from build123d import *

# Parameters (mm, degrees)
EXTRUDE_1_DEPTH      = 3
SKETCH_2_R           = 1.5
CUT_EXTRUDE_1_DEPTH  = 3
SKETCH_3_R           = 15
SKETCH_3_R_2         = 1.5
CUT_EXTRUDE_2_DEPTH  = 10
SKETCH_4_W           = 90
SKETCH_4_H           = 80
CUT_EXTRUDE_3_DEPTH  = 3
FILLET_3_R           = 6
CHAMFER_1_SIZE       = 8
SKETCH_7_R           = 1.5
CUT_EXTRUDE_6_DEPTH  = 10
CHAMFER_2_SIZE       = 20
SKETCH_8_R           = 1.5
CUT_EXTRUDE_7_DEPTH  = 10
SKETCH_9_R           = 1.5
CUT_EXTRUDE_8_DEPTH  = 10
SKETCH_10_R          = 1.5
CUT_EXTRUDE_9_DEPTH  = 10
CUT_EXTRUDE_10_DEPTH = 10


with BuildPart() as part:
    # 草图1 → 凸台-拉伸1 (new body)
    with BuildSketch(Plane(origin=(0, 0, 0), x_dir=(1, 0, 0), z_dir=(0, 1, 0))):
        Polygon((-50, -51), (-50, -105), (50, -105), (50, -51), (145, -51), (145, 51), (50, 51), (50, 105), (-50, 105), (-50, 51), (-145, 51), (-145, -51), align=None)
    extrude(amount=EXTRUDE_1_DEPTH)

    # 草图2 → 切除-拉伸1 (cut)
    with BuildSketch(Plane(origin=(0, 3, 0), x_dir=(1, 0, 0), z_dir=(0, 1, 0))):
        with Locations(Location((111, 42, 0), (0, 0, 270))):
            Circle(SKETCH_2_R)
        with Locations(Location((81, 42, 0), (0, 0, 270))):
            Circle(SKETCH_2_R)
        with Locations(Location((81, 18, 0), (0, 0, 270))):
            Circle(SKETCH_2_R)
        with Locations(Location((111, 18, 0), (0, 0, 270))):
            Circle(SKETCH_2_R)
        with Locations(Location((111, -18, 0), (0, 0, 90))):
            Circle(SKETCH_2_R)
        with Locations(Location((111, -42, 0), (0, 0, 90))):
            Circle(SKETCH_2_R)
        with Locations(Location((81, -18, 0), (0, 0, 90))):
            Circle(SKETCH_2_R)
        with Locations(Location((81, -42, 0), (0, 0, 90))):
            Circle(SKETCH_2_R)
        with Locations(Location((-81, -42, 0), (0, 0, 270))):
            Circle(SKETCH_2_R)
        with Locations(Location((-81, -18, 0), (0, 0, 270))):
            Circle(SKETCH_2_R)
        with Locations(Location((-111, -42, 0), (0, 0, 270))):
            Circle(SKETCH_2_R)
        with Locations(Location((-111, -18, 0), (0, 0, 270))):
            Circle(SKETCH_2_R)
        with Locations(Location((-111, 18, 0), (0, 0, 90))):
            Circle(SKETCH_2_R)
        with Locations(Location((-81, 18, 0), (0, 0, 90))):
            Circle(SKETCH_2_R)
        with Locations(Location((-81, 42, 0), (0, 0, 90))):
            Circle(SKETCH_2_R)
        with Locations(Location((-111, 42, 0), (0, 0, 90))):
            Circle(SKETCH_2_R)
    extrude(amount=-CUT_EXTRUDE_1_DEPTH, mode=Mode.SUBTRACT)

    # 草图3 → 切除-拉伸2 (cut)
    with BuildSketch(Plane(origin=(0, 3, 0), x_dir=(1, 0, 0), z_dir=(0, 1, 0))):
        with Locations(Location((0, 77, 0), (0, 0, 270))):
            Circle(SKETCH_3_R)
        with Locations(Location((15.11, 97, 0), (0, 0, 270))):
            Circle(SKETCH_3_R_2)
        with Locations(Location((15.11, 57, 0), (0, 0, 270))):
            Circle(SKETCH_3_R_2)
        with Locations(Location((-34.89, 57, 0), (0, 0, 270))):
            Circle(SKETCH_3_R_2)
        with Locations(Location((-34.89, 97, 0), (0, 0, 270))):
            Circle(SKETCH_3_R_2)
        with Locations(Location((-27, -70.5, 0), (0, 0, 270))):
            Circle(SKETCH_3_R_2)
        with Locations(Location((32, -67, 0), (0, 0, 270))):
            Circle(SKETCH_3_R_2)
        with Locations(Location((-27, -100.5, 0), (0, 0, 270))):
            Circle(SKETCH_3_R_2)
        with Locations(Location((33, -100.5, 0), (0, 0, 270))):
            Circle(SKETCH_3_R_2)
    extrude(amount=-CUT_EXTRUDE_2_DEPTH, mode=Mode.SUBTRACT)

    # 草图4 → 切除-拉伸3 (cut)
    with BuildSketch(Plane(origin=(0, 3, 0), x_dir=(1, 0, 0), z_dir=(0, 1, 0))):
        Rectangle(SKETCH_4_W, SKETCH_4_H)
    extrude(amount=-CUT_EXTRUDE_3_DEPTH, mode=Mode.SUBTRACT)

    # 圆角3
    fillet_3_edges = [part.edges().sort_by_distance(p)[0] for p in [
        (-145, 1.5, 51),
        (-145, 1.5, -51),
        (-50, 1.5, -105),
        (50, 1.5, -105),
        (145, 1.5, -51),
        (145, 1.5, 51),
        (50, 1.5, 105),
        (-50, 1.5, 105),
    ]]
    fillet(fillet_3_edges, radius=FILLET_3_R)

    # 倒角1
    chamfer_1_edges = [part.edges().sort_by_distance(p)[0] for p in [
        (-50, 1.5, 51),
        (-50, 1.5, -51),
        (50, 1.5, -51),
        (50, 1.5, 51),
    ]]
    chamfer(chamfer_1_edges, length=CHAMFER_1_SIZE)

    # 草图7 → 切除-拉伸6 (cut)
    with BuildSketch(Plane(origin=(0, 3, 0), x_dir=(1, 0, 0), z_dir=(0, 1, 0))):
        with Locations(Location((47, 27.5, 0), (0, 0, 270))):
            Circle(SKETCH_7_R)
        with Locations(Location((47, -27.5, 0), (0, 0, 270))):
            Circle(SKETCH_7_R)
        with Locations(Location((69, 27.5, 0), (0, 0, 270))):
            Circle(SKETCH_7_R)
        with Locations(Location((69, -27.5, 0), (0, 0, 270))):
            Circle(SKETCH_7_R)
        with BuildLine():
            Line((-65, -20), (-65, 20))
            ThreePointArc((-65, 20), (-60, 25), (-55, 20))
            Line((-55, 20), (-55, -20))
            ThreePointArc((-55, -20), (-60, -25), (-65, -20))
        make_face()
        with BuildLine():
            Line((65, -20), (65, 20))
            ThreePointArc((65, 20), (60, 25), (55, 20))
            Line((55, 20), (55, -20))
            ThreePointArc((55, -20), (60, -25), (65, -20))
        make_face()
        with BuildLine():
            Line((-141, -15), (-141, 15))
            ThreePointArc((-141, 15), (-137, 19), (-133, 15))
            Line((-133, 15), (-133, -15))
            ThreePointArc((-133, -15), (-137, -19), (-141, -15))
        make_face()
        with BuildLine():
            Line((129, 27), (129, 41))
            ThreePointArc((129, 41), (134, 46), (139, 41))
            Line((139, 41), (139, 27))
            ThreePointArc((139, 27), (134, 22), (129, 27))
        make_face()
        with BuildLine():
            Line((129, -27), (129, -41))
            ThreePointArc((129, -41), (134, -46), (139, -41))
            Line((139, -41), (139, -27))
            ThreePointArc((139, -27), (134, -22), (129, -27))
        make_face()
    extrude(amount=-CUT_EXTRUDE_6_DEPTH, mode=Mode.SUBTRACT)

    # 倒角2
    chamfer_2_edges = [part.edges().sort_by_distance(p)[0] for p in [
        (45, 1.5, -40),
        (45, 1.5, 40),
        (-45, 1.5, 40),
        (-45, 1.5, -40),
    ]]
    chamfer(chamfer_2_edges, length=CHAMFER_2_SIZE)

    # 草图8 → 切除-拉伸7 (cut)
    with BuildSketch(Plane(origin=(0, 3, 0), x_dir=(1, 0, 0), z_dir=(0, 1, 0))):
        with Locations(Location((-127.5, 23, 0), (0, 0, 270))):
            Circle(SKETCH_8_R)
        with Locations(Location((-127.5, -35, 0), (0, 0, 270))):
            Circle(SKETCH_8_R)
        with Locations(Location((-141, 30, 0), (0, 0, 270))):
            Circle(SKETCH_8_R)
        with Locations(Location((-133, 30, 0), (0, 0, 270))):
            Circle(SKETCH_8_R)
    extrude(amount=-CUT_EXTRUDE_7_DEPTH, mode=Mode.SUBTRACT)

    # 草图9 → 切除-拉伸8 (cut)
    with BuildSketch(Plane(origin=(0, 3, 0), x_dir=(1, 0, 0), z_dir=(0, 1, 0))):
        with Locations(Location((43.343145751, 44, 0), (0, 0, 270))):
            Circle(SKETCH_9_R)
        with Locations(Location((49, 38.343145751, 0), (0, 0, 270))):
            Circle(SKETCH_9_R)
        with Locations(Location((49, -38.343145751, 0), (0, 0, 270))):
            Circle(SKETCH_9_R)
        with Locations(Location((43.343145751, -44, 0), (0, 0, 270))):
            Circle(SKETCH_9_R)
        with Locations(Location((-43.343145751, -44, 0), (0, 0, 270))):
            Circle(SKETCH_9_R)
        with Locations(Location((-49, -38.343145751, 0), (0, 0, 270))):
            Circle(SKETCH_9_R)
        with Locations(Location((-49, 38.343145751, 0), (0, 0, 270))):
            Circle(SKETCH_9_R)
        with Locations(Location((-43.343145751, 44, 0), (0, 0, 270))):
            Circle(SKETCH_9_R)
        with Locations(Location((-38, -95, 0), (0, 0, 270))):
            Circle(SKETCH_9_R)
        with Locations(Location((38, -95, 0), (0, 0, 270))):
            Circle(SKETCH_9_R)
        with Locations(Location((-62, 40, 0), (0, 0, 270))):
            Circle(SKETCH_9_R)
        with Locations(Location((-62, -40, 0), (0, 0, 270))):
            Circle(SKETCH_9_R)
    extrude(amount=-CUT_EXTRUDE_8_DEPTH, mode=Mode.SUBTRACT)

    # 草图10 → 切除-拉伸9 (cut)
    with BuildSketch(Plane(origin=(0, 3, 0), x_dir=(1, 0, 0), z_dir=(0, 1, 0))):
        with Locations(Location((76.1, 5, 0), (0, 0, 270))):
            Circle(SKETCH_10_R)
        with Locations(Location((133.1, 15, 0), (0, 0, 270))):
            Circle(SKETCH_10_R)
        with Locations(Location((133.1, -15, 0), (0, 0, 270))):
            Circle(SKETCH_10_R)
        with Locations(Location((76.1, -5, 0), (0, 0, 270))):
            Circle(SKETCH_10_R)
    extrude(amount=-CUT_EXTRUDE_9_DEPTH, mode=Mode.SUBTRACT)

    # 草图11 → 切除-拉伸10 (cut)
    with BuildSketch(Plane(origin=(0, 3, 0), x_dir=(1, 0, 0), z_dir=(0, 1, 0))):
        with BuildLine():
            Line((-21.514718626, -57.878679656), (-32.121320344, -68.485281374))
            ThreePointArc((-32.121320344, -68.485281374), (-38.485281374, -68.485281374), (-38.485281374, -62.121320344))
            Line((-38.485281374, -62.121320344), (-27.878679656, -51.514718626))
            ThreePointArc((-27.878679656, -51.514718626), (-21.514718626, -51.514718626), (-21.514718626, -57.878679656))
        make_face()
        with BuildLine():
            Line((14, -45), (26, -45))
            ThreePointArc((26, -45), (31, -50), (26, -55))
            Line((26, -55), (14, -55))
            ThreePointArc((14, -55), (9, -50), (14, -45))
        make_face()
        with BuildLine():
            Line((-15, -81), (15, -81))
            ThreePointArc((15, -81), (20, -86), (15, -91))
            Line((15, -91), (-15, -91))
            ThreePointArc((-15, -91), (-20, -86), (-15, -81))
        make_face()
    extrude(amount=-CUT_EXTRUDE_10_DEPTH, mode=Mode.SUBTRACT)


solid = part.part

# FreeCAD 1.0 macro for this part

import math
import FreeCAD as App
import Part
import Sketcher

V = App.Vector
Q = App.Units.Quantity


def edges_at(feature, points):
    """Names of the edges that pass closest to the given points."""
    edges = feature.Shape.Edges
    near = lambda p: min(range(len(edges)), key=lambda i: edges[i].distToShape(Part.Vertex(*p))[0])
    return sorted({f"Edge{near(p) + 1}" for p in points})


def add_polygon(sketch, points):
    """Adds a closed chain of lines whose ends are joined by coincident constraints."""
    first, n = sketch.GeometryCount, len(points)
    for a, b in zip(points, points[1:] + points[:1]):
        sketch.addGeometry(Part.LineSegment(App.Vector(*a, 0), App.Vector(*b, 0)), False)
    for i in range(n):
        sketch.addConstraint(Sketcher.Constraint("Coincident", first + i, 2, first + (i + 1) % n, 1))

doc = App.newDocument("Part")
body = doc.addObject("PartDesign::Body", "Body")

# Sketch on XZ plane
sketch1 = body.newObject("Sketcher::SketchObject", "Sketch")
sketch1.AttachmentSupport = (doc.getObject("XZ_Plane"), [""])
sketch1.MapMode = "FlatFace"
add_polygon(sketch1, [(-50, 51), (-50, 105), (50, 105), (50, 51), (145, 51), (145, -51), (50, -51), (50, -105), (-50, -105), (-50, -51), (-145, -51), (-145, 51)])  # lines 0-11
sketch1.addConstraint([
    Sketcher.Constraint("Vertical", 0),
    Sketcher.Constraint("Horizontal", 1),
    Sketcher.Constraint("Vertical", 2),
    Sketcher.Constraint("Horizontal", 3),
    Sketcher.Constraint("Vertical", 4),
    Sketcher.Constraint("Horizontal", 5),
    Sketcher.Constraint("Vertical", 6),
    Sketcher.Constraint("Horizontal", 7),
    Sketcher.Constraint("Vertical", 8),
    Sketcher.Constraint("Horizontal", 9),
    Sketcher.Constraint("Vertical", 10),
    Sketcher.Constraint("Horizontal", 11),
    Sketcher.Constraint("Symmetric", 0, 2, 6, 2, -1, 1),
    Sketcher.Constraint("Symmetric", 2, 2, 8, 2, -1, 1),
    Sketcher.Constraint("Symmetric", 4, 2, 10, 2, -1, 1),
    Sketcher.Constraint("Symmetric", 5, 2, 8, 2, -2),
    Sketcher.Constraint("DistanceX", 1, 1, 1, 2, Q("100 mm")),
    Sketcher.Constraint("DistanceX", 3, 1, 3, 2, Q("95 mm")),
    Sketcher.Constraint("DistanceY", 0, 1, 0, 2, Q("54 mm")),
    Sketcher.Constraint("DistanceY", 4, 2, 4, 1, Q("102 mm")),
])
pad1 = body.newObject("PartDesign::Pad", "Pad")
pad1.Profile = sketch1
pad1.Length = 3
pad1.Reversed = True

# Sketch on XZ plane
sketch2 = body.newObject("Sketcher::SketchObject", "Sketch001")
sketch2.AttachmentSupport = (doc.getObject("XZ_Plane"), [""])
sketch2.MapMode = "FlatFace"
sketch2.AttachmentOffset = App.Placement(V(0, 0, -3), App.Rotation())
sketch2.addGeometry([
    Part.Circle(V(111, -42, 0), V(0, 0, 1), 1.5),  # 0
    Part.Circle(V(81, -42, 0), V(0, 0, 1), 1.5),  # 1
    Part.Circle(V(81, -18, 0), V(0, 0, 1), 1.5),  # 2
    Part.Circle(V(111, -18, 0), V(0, 0, 1), 1.5),  # 3
    Part.Circle(V(111, 18, 0), V(0, 0, 1), 1.5),  # 4
    Part.Circle(V(111, 42, 0), V(0, 0, 1), 1.5),  # 5
    Part.Circle(V(81, 18, 0), V(0, 0, 1), 1.5),  # 6
    Part.Circle(V(81, 42, 0), V(0, 0, 1), 1.5),  # 7
    Part.Circle(V(-81, 42, 0), V(0, 0, 1), 1.5),  # 8
    Part.Circle(V(-81, 18, 0), V(0, 0, 1), 1.5),  # 9
    Part.Circle(V(-111, 42, 0), V(0, 0, 1), 1.5),  # 10
    Part.Circle(V(-111, 18, 0), V(0, 0, 1), 1.5),  # 11
    Part.Circle(V(-111, -18, 0), V(0, 0, 1), 1.5),  # 12
    Part.Circle(V(-81, -18, 0), V(0, 0, 1), 1.5),  # 13
    Part.Circle(V(-81, -42, 0), V(0, 0, 1), 1.5),  # 14
    Part.Circle(V(-111, -42, 0), V(0, 0, 1), 1.5),  # 15
], False)
sketch2.addConstraint([
    Sketcher.Constraint("Equal", 0, 1),
    Sketcher.Constraint("Equal", 1, 2),
    Sketcher.Constraint("Equal", 2, 3),
    Sketcher.Constraint("Equal", 3, 4),
    Sketcher.Constraint("Equal", 4, 5),
    Sketcher.Constraint("Equal", 5, 6),
    Sketcher.Constraint("Equal", 6, 7),
    Sketcher.Constraint("Equal", 7, 8),
    Sketcher.Constraint("Equal", 8, 9),
    Sketcher.Constraint("Equal", 9, 10),
    Sketcher.Constraint("Equal", 10, 11),
    Sketcher.Constraint("Equal", 11, 12),
    Sketcher.Constraint("Equal", 12, 13),
    Sketcher.Constraint("Equal", 13, 14),
    Sketcher.Constraint("Equal", 14, 15),
    Sketcher.Constraint("Symmetric", 1, 3, 8, 3, -1, 1),
    Sketcher.Constraint("Symmetric", 2, 3, 9, 3, -1, 1),
    Sketcher.Constraint("Symmetric", 0, 3, 10, 3, -1, 1),
    Sketcher.Constraint("Symmetric", 3, 3, 11, 3, -1, 1),
    Sketcher.Constraint("Symmetric", 4, 3, 12, 3, -1, 1),
    Sketcher.Constraint("Symmetric", 6, 3, 13, 3, -1, 1),
    Sketcher.Constraint("Symmetric", 7, 3, 14, 3, -1, 1),
    Sketcher.Constraint("Symmetric", 5, 3, 15, 3, -1, 1),
    Sketcher.Constraint("Symmetric", 7, 3, 8, 3, -2),
    Sketcher.Constraint("Symmetric", 6, 3, 9, 3, -2),
    Sketcher.Constraint("Symmetric", 5, 3, 10, 3, -2),
    Sketcher.Constraint("Symmetric", 4, 3, 11, 3, -2),
    Sketcher.Constraint("Horizontal", 0, 3, 1, 3),
    Sketcher.Constraint("Horizontal", 2, 3, 3, 3),
    Sketcher.Constraint("Vertical", 1, 3, 2, 3),
    Sketcher.Constraint("Vertical", 0, 3, 3, 3),
    Sketcher.Constraint("Diameter", 0, Q("3 mm")),
    Sketcher.Constraint("DistanceX", -1, 1, 0, 3, Q("111 mm")),
    Sketcher.Constraint("DistanceY", 0, 3, -1, 1, Q("42 mm")),
    Sketcher.Constraint("DistanceX", -1, 1, 1, 3, Q("81 mm")),
    Sketcher.Constraint("DistanceY", 2, 3, -1, 1, Q("18 mm")),
])
pocket1 = body.newObject("PartDesign::Pocket", "Pocket")
pocket1.Profile = sketch2
pocket1.Length = 3
pocket1.Reversed = True

# Sketch on XZ plane
sketch3 = body.newObject("Sketcher::SketchObject", "Sketch002")
sketch3.AttachmentSupport = (doc.getObject("XZ_Plane"), [""])
sketch3.MapMode = "FlatFace"
sketch3.AttachmentOffset = App.Placement(V(0, 0, -3), App.Rotation())
sketch3.addGeometry([
    Part.Circle(V(0, -77, 0), V(0, 0, 1), 15),  # 0
    Part.Circle(V(15.11, -97, 0), V(0, 0, 1), 1.5),  # 1
    Part.Circle(V(15.11, -57, 0), V(0, 0, 1), 1.5),  # 2
    Part.Circle(V(-34.89, -57, 0), V(0, 0, 1), 1.5),  # 3
    Part.Circle(V(-34.89, -97, 0), V(0, 0, 1), 1.5),  # 4
    Part.Circle(V(-27, 70.5, 0), V(0, 0, 1), 1.5),  # 5
    Part.Circle(V(32, 67, 0), V(0, 0, 1), 1.5),  # 6
    Part.Circle(V(-27, 100.5, 0), V(0, 0, 1), 1.5),  # 7
    Part.Circle(V(33, 100.5, 0), V(0, 0, 1), 1.5),  # 8
], False)
sketch3.addConstraint([
    Sketcher.Constraint("Equal", 1, 2),
    Sketcher.Constraint("Equal", 2, 3),
    Sketcher.Constraint("Equal", 3, 4),
    Sketcher.Constraint("Equal", 4, 5),
    Sketcher.Constraint("Equal", 5, 6),
    Sketcher.Constraint("Equal", 6, 7),
    Sketcher.Constraint("Equal", 7, 8),
    Sketcher.Constraint("PointOnObject", 0, 3, -2),
    Sketcher.Constraint("Horizontal", 2, 3, 3, 3),
    Sketcher.Constraint("Horizontal", 1, 3, 4, 3),
    Sketcher.Constraint("Horizontal", 7, 3, 8, 3),
    Sketcher.Constraint("Vertical", 1, 3, 2, 3),
    Sketcher.Constraint("Vertical", 3, 3, 4, 3),
    Sketcher.Constraint("Vertical", 5, 3, 7, 3),
    Sketcher.Constraint("Diameter", 0, Q("30 mm")),
    Sketcher.Constraint("Diameter", 1, Q("3 mm")),
    Sketcher.Constraint("DistanceY", 0, 3, -1, 1, Q("77 mm")),
    Sketcher.Constraint("DistanceY", 1, 3, -1, 1, Q("97 mm")),
    Sketcher.Constraint("DistanceY", 2, 3, -1, 1, Q("57 mm")),
    Sketcher.Constraint("DistanceX", 5, 3, -1, 1, Q("27 mm")),
    Sketcher.Constraint("DistanceX", -1, 1, 6, 3, Q("32 mm")),
    Sketcher.Constraint("DistanceY", -1, 1, 6, 3, Q("67 mm")),
    Sketcher.Constraint("DistanceX", -1, 1, 8, 3, Q("33 mm")),
    Sketcher.Constraint("DistanceX", 3, 3, 2, 3, Q("50 mm")),
    Sketcher.Constraint("DistanceY", 5, 3, 7, 3, Q("30 mm")),
    Sketcher.Constraint("DistanceY", -1, 1, 5, 3, Q("70.5 mm")),
    Sketcher.Constraint("DistanceX", -1, 1, 1, 3, Q("15.11 mm")),
])
pocket2 = body.newObject("PartDesign::Pocket", "Pocket001")
pocket2.Profile = sketch3
pocket2.Length = 10
pocket2.Reversed = True

# Sketch on XZ plane
sketch4 = body.newObject("Sketcher::SketchObject", "Sketch003")
sketch4.AttachmentSupport = (doc.getObject("XZ_Plane"), [""])
sketch4.MapMode = "FlatFace"
sketch4.AttachmentOffset = App.Placement(V(0, 0, -3), App.Rotation())
add_polygon(sketch4, [(-45, -40), (-45, 40), (45, 40), (45, -40)])  # lines 0-3
sketch4.addConstraint([
    Sketcher.Constraint("Vertical", 0),
    Sketcher.Constraint("Horizontal", 1),
    Sketcher.Constraint("Vertical", 2),
    Sketcher.Constraint("Horizontal", 3),
    Sketcher.Constraint("Symmetric", 0, 2, 2, 2, -1, 1),
    Sketcher.Constraint("DistanceX", 1, 1, 1, 2, Q("90 mm")),
    Sketcher.Constraint("DistanceY", 0, 1, 0, 2, Q("80 mm")),
])
pocket3 = body.newObject("PartDesign::Pocket", "Pocket002")
pocket3.Profile = sketch4
pocket3.Length = 3
pocket3.Reversed = True
doc.recompute()

fillet = body.newObject("PartDesign::Fillet", "Fillet")
fillet.Base = (pocket3, edges_at(pocket3, [
    (-145, 1.5, 51),
    (-145, 1.5, -51),
    (-50, 1.5, -105),
    (50, 1.5, -105),
    (145, 1.5, -51),
    (145, 1.5, 51),
    (50, 1.5, 105),
    (-50, 1.5, 105),
]))
fillet.Radius = 6
doc.recompute()

chamfer = body.newObject("PartDesign::Chamfer", "Chamfer")
chamfer.Base = (fillet, edges_at(fillet, [
    (-50, 1.5, 51),
    (-50, 1.5, -51),
    (50, 1.5, -51),
    (50, 1.5, 51),
]))
chamfer.Size = 8

# Sketch on XZ plane
sketch5 = body.newObject("Sketcher::SketchObject", "Sketch004")
sketch5.AttachmentSupport = (doc.getObject("XZ_Plane"), [""])
sketch5.MapMode = "FlatFace"
sketch5.AttachmentOffset = App.Placement(V(0, 0, -3), App.Rotation())
sketch5.addGeometry([
    Part.Circle(V(47, -27.5, 0), V(0, 0, 1), 1.5),  # 0
    Part.Circle(V(47, 27.5, 0), V(0, 0, 1), 1.5),  # 1
    Part.Circle(V(69, -27.5, 0), V(0, 0, 1), 1.5),  # 2
    Part.Circle(V(69, 27.5, 0), V(0, 0, 1), 1.5),  # 3
    Part.LineSegment(V(-65, -20, 0), V(-65, 20, 0)),  # 4
    Part.ArcOfCircle(Part.Circle(V(-60, 20, 0), V(0, 0, 1), 5), math.radians(0), math.radians(180)),  # 5
    Part.LineSegment(V(-55, 20, 0), V(-55, -20, 0)),  # 6
    Part.ArcOfCircle(Part.Circle(V(-60, -20, 0), V(0, 0, 1), 5), math.radians(180), math.radians(360)),  # 7
    Part.LineSegment(V(65, 20, 0), V(65, -20, 0)),  # 8
    Part.ArcOfCircle(Part.Circle(V(60, -20, 0), V(0, 0, 1), 5), math.radians(180), math.radians(360)),  # 9
    Part.LineSegment(V(55, -20, 0), V(55, 20, 0)),  # 10
    Part.ArcOfCircle(Part.Circle(V(60, 20, 0), V(0, 0, 1), 5), math.radians(0), math.radians(180)),  # 11
    Part.LineSegment(V(-141, -15, 0), V(-141, 15, 0)),  # 12
    Part.ArcOfCircle(Part.Circle(V(-137, 15, 0), V(0, 0, 1), 4), math.radians(0), math.radians(180)),  # 13
    Part.LineSegment(V(-133, 15, 0), V(-133, -15, 0)),  # 14
    Part.ArcOfCircle(Part.Circle(V(-137, -15, 0), V(0, 0, 1), 4), math.radians(180), math.radians(360)),  # 15
    Part.LineSegment(V(129, -41, 0), V(129, -27, 0)),  # 16
    Part.ArcOfCircle(Part.Circle(V(134, -27, 0), V(0, 0, 1), 5), math.radians(0), math.radians(180)),  # 17
    Part.LineSegment(V(139, -27, 0), V(139, -41, 0)),  # 18
    Part.ArcOfCircle(Part.Circle(V(134, -41, 0), V(0, 0, 1), 5), math.radians(180), math.radians(360)),  # 19
    Part.LineSegment(V(129, 27, 0), V(129, 41, 0)),  # 20
    Part.ArcOfCircle(Part.Circle(V(134, 41, 0), V(0, 0, 1), 5), math.radians(0), math.radians(180)),  # 21
    Part.LineSegment(V(139, 41, 0), V(139, 27, 0)),  # 22
    Part.ArcOfCircle(Part.Circle(V(134, 27, 0), V(0, 0, 1), 5), math.radians(180), math.radians(360)),  # 23
], False)
sketch5.addConstraint([
    Sketcher.Constraint("Tangent", 4, 2, 5, 2),
    Sketcher.Constraint("Tangent", 5, 1, 6, 1),
    Sketcher.Constraint("Tangent", 6, 2, 7, 2),
    Sketcher.Constraint("Tangent", 7, 1, 4, 1),
    Sketcher.Constraint("Tangent", 8, 2, 9, 2),
    Sketcher.Constraint("Tangent", 9, 1, 10, 1),
    Sketcher.Constraint("Tangent", 10, 2, 11, 2),
    Sketcher.Constraint("Tangent", 11, 1, 8, 1),
    Sketcher.Constraint("Tangent", 12, 2, 13, 2),
    Sketcher.Constraint("Tangent", 13, 1, 14, 1),
    Sketcher.Constraint("Tangent", 14, 2, 15, 2),
    Sketcher.Constraint("Tangent", 15, 1, 12, 1),
    Sketcher.Constraint("Tangent", 16, 2, 17, 2),
    Sketcher.Constraint("Tangent", 17, 1, 18, 1),
    Sketcher.Constraint("Tangent", 18, 2, 19, 2),
    Sketcher.Constraint("Tangent", 19, 1, 16, 1),
    Sketcher.Constraint("Tangent", 20, 2, 21, 2),
    Sketcher.Constraint("Tangent", 21, 1, 22, 1),
    Sketcher.Constraint("Tangent", 22, 2, 23, 2),
    Sketcher.Constraint("Tangent", 23, 1, 20, 1),
    Sketcher.Constraint("Vertical", 4),
    Sketcher.Constraint("Vertical", 6),
    Sketcher.Constraint("Vertical", 8),
    Sketcher.Constraint("Vertical", 10),
    Sketcher.Constraint("Vertical", 12),
    Sketcher.Constraint("Vertical", 14),
    Sketcher.Constraint("Vertical", 16),
    Sketcher.Constraint("Vertical", 18),
    Sketcher.Constraint("Vertical", 20),
    Sketcher.Constraint("Vertical", 22),
    Sketcher.Constraint("Equal", 0, 1),
    Sketcher.Constraint("Equal", 1, 2),
    Sketcher.Constraint("Equal", 2, 3),
    Sketcher.Constraint("Equal", 7, 9),
    Sketcher.Constraint("Equal", 11, 17),
    Sketcher.Constraint("Equal", 19, 21),
    Sketcher.Constraint("Symmetric", 5, 3, 9, 3, -1, 1),
    Sketcher.Constraint("Symmetric", 0, 3, 1, 3, -1),
    Sketcher.Constraint("Symmetric", 2, 3, 3, 3, -1),
    Sketcher.Constraint("Symmetric", 19, 3, 21, 3, -1),
    Sketcher.Constraint("Horizontal", 0, 3, 2, 3),
    Sketcher.Constraint("Horizontal", 7, 3, 9, 3),
    Sketcher.Constraint("Horizontal", 5, 3, 11, 3),
    Sketcher.Constraint("Equal", 18, 20),
    Sketcher.Constraint("Diameter", 0, Q("3 mm")),
    Sketcher.Constraint("Radius", 5, Q("5 mm")),
    Sketcher.Constraint("Radius", 13, Q("4 mm")),
    Sketcher.Constraint("DistanceY", 4, 1, 4, 2, Q("40 mm")),
    Sketcher.Constraint("DistanceY", 12, 1, 12, 2, Q("30 mm")),
    Sketcher.Constraint("DistanceY", 16, 1, 16, 2, Q("14 mm")),
    Sketcher.Constraint("DistanceX", -1, 1, 0, 3, Q("47 mm")),
    Sketcher.Constraint("DistanceX", -1, 1, 2, 3, Q("69 mm")),
    Sketcher.Constraint("DistanceX", 5, 3, -1, 1, Q("60 mm")),
    Sketcher.Constraint("DistanceX", 13, 3, -1, 1, Q("137 mm")),
    Sketcher.Constraint("DistanceY", -1, 1, 13, 3, Q("15 mm")),
    Sketcher.Constraint("DistanceX", -1, 1, 17, 3, Q("134 mm")),
    Sketcher.Constraint("DistanceY", 17, 3, -1, 1, Q("27 mm")),
    Sketcher.Constraint("DistanceY", 0, 3, 1, 3, Q("55 mm")),
])
pocket4 = body.newObject("PartDesign::Pocket", "Pocket003")
pocket4.Profile = sketch5
pocket4.Length = 10
pocket4.Reversed = True
doc.recompute()

chamfer2 = body.newObject("PartDesign::Chamfer", "Chamfer001")
chamfer2.Base = (pocket4, edges_at(pocket4, [
    (45, 1.5, -40),
    (45, 1.5, 40),
    (-45, 1.5, 40),
    (-45, 1.5, -40),
]))
chamfer2.Size = 20

# Sketch on XZ plane
sketch6 = body.newObject("Sketcher::SketchObject", "Sketch005")
sketch6.AttachmentSupport = (doc.getObject("XZ_Plane"), [""])
sketch6.MapMode = "FlatFace"
sketch6.AttachmentOffset = App.Placement(V(0, 0, -3), App.Rotation())
sketch6.addGeometry([
    Part.Circle(V(-127.5, -23, 0), V(0, 0, 1), 1.5),
    Part.Circle(V(-127.5, 35, 0), V(0, 0, 1), 1.5),
    Part.Circle(V(-141, -30, 0), V(0, 0, 1), 1.5),
    Part.Circle(V(-133, -30, 0), V(0, 0, 1), 1.5),
], False)
sketch6.addConstraint([
    Sketcher.Constraint("Equal", 0, 1),
    Sketcher.Constraint("Equal", 1, 2),
    Sketcher.Constraint("Equal", 2, 3),
    Sketcher.Constraint("Horizontal", 2, 3, 3, 3),
    Sketcher.Constraint("Vertical", 0, 3, 1, 3),
    Sketcher.Constraint("Diameter", 0, Q("3 mm")),
    Sketcher.Constraint("DistanceY", 0, 3, -1, 1, Q("23 mm")),
    Sketcher.Constraint("DistanceY", -1, 1, 1, 3, Q("35 mm")),
    Sketcher.Constraint("DistanceX", 2, 3, -1, 1, Q("141 mm")),
    Sketcher.Constraint("DistanceY", 2, 3, -1, 1, Q("30 mm")),
    Sketcher.Constraint("DistanceX", 3, 3, -1, 1, Q("133 mm")),
    Sketcher.Constraint("DistanceX", 0, 3, -1, 1, Q("127.5 mm")),
])
pocket5 = body.newObject("PartDesign::Pocket", "Pocket004")
pocket5.Profile = sketch6
pocket5.Length = 10
pocket5.Reversed = True

# Sketch on XZ plane
sketch7 = body.newObject("Sketcher::SketchObject", "Sketch006")
sketch7.AttachmentSupport = (doc.getObject("XZ_Plane"), [""])
sketch7.MapMode = "FlatFace"
sketch7.AttachmentOffset = App.Placement(V(0, 0, -3), App.Rotation())
sketch7.addGeometry([
    Part.Circle(V(43.343146, -44, 0), V(0, 0, 1), 1.5),  # 0
    Part.Circle(V(49, -38.343146, 0), V(0, 0, 1), 1.5),  # 1
    Part.Circle(V(49, 38.343146, 0), V(0, 0, 1), 1.5),  # 2
    Part.Circle(V(43.343146, 44, 0), V(0, 0, 1), 1.5),  # 3
    Part.Circle(V(-43.343146, 44, 0), V(0, 0, 1), 1.5),  # 4
    Part.Circle(V(-49, 38.343146, 0), V(0, 0, 1), 1.5),  # 5
    Part.Circle(V(-49, -38.343146, 0), V(0, 0, 1), 1.5),  # 6
    Part.Circle(V(-43.343146, -44, 0), V(0, 0, 1), 1.5),  # 7
    Part.Circle(V(-38, 95, 0), V(0, 0, 1), 1.5),  # 8
    Part.Circle(V(38, 95, 0), V(0, 0, 1), 1.5),  # 9
    Part.Circle(V(-62, -40, 0), V(0, 0, 1), 1.5),  # 10
    Part.Circle(V(-62, 40, 0), V(0, 0, 1), 1.5),  # 11
], False)
sketch7.addConstraint([
    Sketcher.Constraint("Equal", 0, 1),
    Sketcher.Constraint("Equal", 1, 2),
    Sketcher.Constraint("Equal", 2, 3),
    Sketcher.Constraint("Equal", 3, 4),
    Sketcher.Constraint("Equal", 4, 5),
    Sketcher.Constraint("Equal", 5, 6),
    Sketcher.Constraint("Equal", 6, 7),
    Sketcher.Constraint("Equal", 7, 8),
    Sketcher.Constraint("Equal", 8, 9),
    Sketcher.Constraint("Equal", 9, 10),
    Sketcher.Constraint("Equal", 10, 11),
    Sketcher.Constraint("Symmetric", 0, 3, 4, 3, -1, 1),
    Sketcher.Constraint("Symmetric", 1, 3, 5, 3, -1, 1),
    Sketcher.Constraint("Symmetric", 2, 3, 6, 3, -1, 1),
    Sketcher.Constraint("Symmetric", 3, 3, 7, 3, -1, 1),
    Sketcher.Constraint("Symmetric", 3, 3, 4, 3, -2),
    Sketcher.Constraint("Symmetric", 2, 3, 5, 3, -2),
    Sketcher.Constraint("Symmetric", 8, 3, 9, 3, -2),
    Sketcher.Constraint("Symmetric", 10, 3, 11, 3, -1),
    Sketcher.Constraint("Diameter", 0, Q("3 mm")),
    Sketcher.Constraint("DistanceY", 0, 3, -1, 1, Q("44 mm")),
    Sketcher.Constraint("DistanceX", -1, 1, 1, 3, Q("49 mm")),
    Sketcher.Constraint("DistanceX", 8, 3, -1, 1, Q("38 mm")),
    Sketcher.Constraint("DistanceY", -1, 1, 8, 3, Q("95 mm")),
    Sketcher.Constraint("DistanceX", 10, 3, -1, 1, Q("62 mm")),
    Sketcher.Constraint("DistanceY", 10, 3, -1, 1, Q("40 mm")),
    Sketcher.Constraint("DistanceY", 1, 3, 2, 3, Q("76.686292 mm")),
    Sketcher.Constraint("DistanceX", 4, 3, 3, 3, Q("86.686292 mm")),
])
pocket6 = body.newObject("PartDesign::Pocket", "Pocket005")
pocket6.Profile = sketch7
pocket6.Length = 10
pocket6.Reversed = True

# Sketch on XZ plane
sketch8 = body.newObject("Sketcher::SketchObject", "Sketch007")
sketch8.AttachmentSupport = (doc.getObject("XZ_Plane"), [""])
sketch8.MapMode = "FlatFace"
sketch8.AttachmentOffset = App.Placement(V(0, 0, -3), App.Rotation())
sketch8.addGeometry([
    Part.Circle(V(76.1, -5, 0), V(0, 0, 1), 1.5),
    Part.Circle(V(133.1, -15, 0), V(0, 0, 1), 1.5),
    Part.Circle(V(133.1, 15, 0), V(0, 0, 1), 1.5),
    Part.Circle(V(76.1, 5, 0), V(0, 0, 1), 1.5),
], False)
sketch8.addConstraint([
    Sketcher.Constraint("Equal", 0, 1),
    Sketcher.Constraint("Equal", 1, 2),
    Sketcher.Constraint("Equal", 2, 3),
    Sketcher.Constraint("Symmetric", 1, 3, 2, 3, -1),
    Sketcher.Constraint("Symmetric", 0, 3, 3, 3, -1),
    Sketcher.Constraint("Diameter", 0, Q("3 mm")),
    Sketcher.Constraint("DistanceY", 0, 3, -1, 1, Q("5 mm")),
    Sketcher.Constraint("DistanceY", 1, 3, -1, 1, Q("15 mm")),
    Sketcher.Constraint("DistanceX", 0, 3, 1, 3, Q("57 mm")),
    Sketcher.Constraint("DistanceX", -1, 1, 0, 3, Q("76.1 mm")),
])
pocket7 = body.newObject("PartDesign::Pocket", "Pocket006")
pocket7.Profile = sketch8
pocket7.Length = 10
pocket7.Reversed = True

# Sketch on XZ plane
sketch9 = body.newObject("Sketcher::SketchObject", "Sketch008")
sketch9.AttachmentSupport = (doc.getObject("XZ_Plane"), [""])
sketch9.MapMode = "FlatFace"
sketch9.AttachmentOffset = App.Placement(V(0, 0, -3), App.Rotation())
sketch9.addGeometry([
    Part.LineSegment(V(-32.12132, 68.485281, 0), V(-21.514719, 57.87868, 0)),  # 0
    Part.ArcOfCircle(Part.Circle(V(-24.696699, 54.696699, 0), V(0, 0, 1), 4.5), math.radians(-135), math.radians(45)),  # 1
    Part.LineSegment(V(-27.87868, 51.514719, 0), V(-38.485281, 62.12132, 0)),  # 2
    Part.ArcOfCircle(Part.Circle(V(-35.303301, 65.303301, 0), V(0, 0, 1), 4.5), math.radians(45), math.radians(225)),  # 3
    Part.LineSegment(V(26, 45, 0), V(14, 45, 0)),  # 4
    Part.ArcOfCircle(Part.Circle(V(14, 50, 0), V(0, 0, 1), 5), math.radians(90), math.radians(270)),  # 5
    Part.LineSegment(V(14, 55, 0), V(26, 55, 0)),  # 6
    Part.ArcOfCircle(Part.Circle(V(26, 50, 0), V(0, 0, 1), 5), math.radians(-90), math.radians(90)),  # 7
    Part.LineSegment(V(15, 81, 0), V(-15, 81, 0)),  # 8
    Part.ArcOfCircle(Part.Circle(V(-15, 86, 0), V(0, 0, 1), 5), math.radians(90), math.radians(270)),  # 9
    Part.LineSegment(V(-15, 91, 0), V(15, 91, 0)),  # 10
    Part.ArcOfCircle(Part.Circle(V(15, 86, 0), V(0, 0, 1), 5), math.radians(-90), math.radians(90)),  # 11
], False)
sketch9.addConstraint([
    Sketcher.Constraint("Tangent", 0, 2, 1, 2),
    Sketcher.Constraint("Tangent", 1, 1, 2, 1),
    Sketcher.Constraint("Tangent", 2, 2, 3, 2),
    Sketcher.Constraint("Tangent", 3, 1, 0, 1),
    Sketcher.Constraint("Tangent", 4, 2, 5, 2),
    Sketcher.Constraint("Tangent", 5, 1, 6, 1),
    Sketcher.Constraint("Tangent", 6, 2, 7, 2),
    Sketcher.Constraint("Tangent", 7, 1, 4, 1),
    Sketcher.Constraint("Tangent", 8, 2, 9, 2),
    Sketcher.Constraint("Tangent", 9, 1, 10, 1),
    Sketcher.Constraint("Tangent", 10, 2, 11, 2),
    Sketcher.Constraint("Tangent", 11, 1, 8, 1),
    Sketcher.Constraint("Horizontal", 4),
    Sketcher.Constraint("Horizontal", 6),
    Sketcher.Constraint("Horizontal", 8),
    Sketcher.Constraint("Horizontal", 10),
    Sketcher.Constraint("Equal", 1, 3),
    Sketcher.Constraint("Equal", 7, 9),
    Sketcher.Constraint("Radius", 5, Q("5 mm")),
    Sketcher.Constraint("Radius", 1, Q("4.5 mm")),
    Sketcher.Constraint("DistanceX", 4, 2, 4, 1, Q("12 mm")),
    Sketcher.Constraint("DistanceX", 8, 2, 8, 1, Q("30 mm")),
    Sketcher.Constraint("Angle", 0, Q("-45 deg")),
    Sketcher.Constraint("Distance", 0, Q("15 mm")),
    Sketcher.Constraint("DistanceX", -1, 1, 5, 3, Q("14 mm")),
    Sketcher.Constraint("DistanceY", -1, 1, 5, 3, Q("50 mm")),
    Sketcher.Constraint("DistanceX", 9, 3, -1, 1, Q("15 mm")),
    Sketcher.Constraint("DistanceY", -1, 1, 9, 3, Q("86 mm")),
    Sketcher.Constraint("DistanceX", 1, 3, -1, 1, Q("24.696699 mm")),
    Sketcher.Constraint("DistanceY", -1, 1, 1, 3, Q("54.696699 mm")),
])
pocket8 = body.newObject("PartDesign::Pocket", "Pocket007")
pocket8.Profile = sketch9
pocket8.Length = 10
pocket8.Reversed = True

doc.recompute()
